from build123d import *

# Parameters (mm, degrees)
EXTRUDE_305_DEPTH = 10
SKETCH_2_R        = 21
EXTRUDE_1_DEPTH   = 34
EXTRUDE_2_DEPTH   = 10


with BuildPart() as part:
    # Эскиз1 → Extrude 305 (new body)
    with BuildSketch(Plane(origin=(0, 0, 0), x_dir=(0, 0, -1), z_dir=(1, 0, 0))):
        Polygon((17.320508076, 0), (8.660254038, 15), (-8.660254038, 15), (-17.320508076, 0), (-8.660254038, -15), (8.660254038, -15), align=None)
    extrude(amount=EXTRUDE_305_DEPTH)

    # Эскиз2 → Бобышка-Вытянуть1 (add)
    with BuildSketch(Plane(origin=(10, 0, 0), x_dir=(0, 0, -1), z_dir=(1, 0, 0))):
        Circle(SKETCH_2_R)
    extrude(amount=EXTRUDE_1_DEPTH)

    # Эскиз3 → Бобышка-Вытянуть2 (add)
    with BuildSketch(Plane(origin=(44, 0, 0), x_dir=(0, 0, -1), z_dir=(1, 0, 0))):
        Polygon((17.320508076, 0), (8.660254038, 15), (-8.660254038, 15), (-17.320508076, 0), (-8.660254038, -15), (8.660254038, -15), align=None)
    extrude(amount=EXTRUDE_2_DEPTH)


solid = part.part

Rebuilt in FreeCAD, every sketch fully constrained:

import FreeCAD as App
import Part
import Sketcher

V = App.Vector
Q = App.Units.Quantity


def add_polygon(sketch, points):
    """Adds a closed chain of lines whose ends are joined by coincident constraints."""
    first, n = sketch.GeometryCount, len(points)
    for a, b in zip(points, points[1:] + points[:1]):
        sketch.addGeometry(Part.LineSegment(App.Vector(*a, 0), App.Vector(*b, 0)), False)
    for i in range(n):
        sketch.addConstraint(Sketcher.Constraint("Coincident", first + i, 2, first + (i + 1) % n, 1))

doc = App.newDocument("Part")
params = doc.addObject("Spreadsheet::Sheet", "Params")
for row, (alias, value) in enumerate([
    ("pad1_length", "10 mm"),
    ("sketch2_diameter", "42 mm"),
    ("pad2_length", "34 mm"),
    ("pad3_length", "10 mm"),
], start=1):
    params.set(f"A{row}", alias)
    params.set(f"B{row}", "=" + value)
    params.setAlias(f"B{row}", alias)

body = doc.addObject("PartDesign::Body", "Body")

# Sketch on YZ plane
sketch1 = body.newObject("Sketcher::SketchObject", "Sketch")
sketch1.AttachmentSupport = (doc.getObject("YZ_Plane"), [""])
sketch1.MapMode = "FlatFace"
add_polygon(sketch1, [(0, -17.320508), (15, -8.660254), (15, 8.660254), (0, 17.320508), (-15, 8.660254), (-15, -8.660254)])  # lines 0-5
sketch1.addConstraint(Sketcher.Constraint("Vertical", 1))
sketch1.addConstraint(Sketcher.Constraint("Vertical", 4))
sketch1.addConstraint(Sketcher.Constraint("Symmetric", 0, 2, 3, 2, -1, 1))
sketch1.addConstraint(Sketcher.Constraint("Symmetric", 2, 2, 5, 2, -1, 1))
sketch1.addConstraint(Sketcher.Constraint("PointOnObject", 2, 2, -2))
sketch1.addConstraint(Sketcher.Constraint("Parallel", 2, 5))
sketch1.addConstraint(Sketcher.Constraint("Horizontal", 1, 2, 3, 2))
sketch1.addConstraint(Sketcher.Constraint("Angle", 0, Q("30 deg")))
sketch1.addConstraint(Sketcher.Constraint("DistanceX", -1, 1, 0, 2, Q("15 mm")))
sketch1.addConstraint(Sketcher.Constraint("DistanceY", 1, 1, 1, 2, Q("17.320508 mm")))
pad1 = body.newObject("PartDesign::Pad", "Pad")
pad1.Profile = sketch1
pad1.setExpression("Length", "Params.pad1_length")

# Sketch on YZ plane
sketch2 = body.newObject("Sketcher::SketchObject", "Sketch001")
sketch2.AttachmentSupport = (doc.getObject("YZ_Plane"), [""])
sketch2.MapMode = "FlatFace"
sketch2.AttachmentOffset = App.Placement(V(0, 0, 10), App.Rotation())
sketch2.addGeometry(Part.Circle(V(0, 0, 0), V(0, 0, 1), 21), False)
sketch2.addConstraint(Sketcher.Constraint("Coincident", 0, 3, -1, 1))
sketch2.addConstraint(Sketcher.Constraint("Diameter", 0, Q("42 mm")))
sketch2.setExpression("Constraints[1]", "Params.sketch2_diameter")
pad2 = body.newObject("PartDesign::Pad", "Pad001")
pad2.Profile = sketch2
pad2.setExpression("Length", "Params.pad2_length")

# Sketch on YZ plane
sketch3 = body.newObject("Sketcher::SketchObject", "Sketch002")
sketch3.AttachmentSupport = (doc.getObject("YZ_Plane"), [""])
sketch3.MapMode = "FlatFace"
sketch3.AttachmentOffset = App.Placement(V(0, 0, 44), App.Rotation())
add_polygon(sketch3, [(0, -17.320508), (15, -8.660254), (15, 8.660254), (0, 17.320508), (-15, 8.660254), (-15, -8.660254)])  # lines 0-5
sketch3.addConstraint(Sketcher.Constraint("Vertical", 1))
sketch3.addConstraint(Sketcher.Constraint("Vertical", 4))
sketch3.addConstraint(Sketcher.Constraint("Symmetric", 0, 2, 3, 2, -1, 1))
sketch3.addConstraint(Sketcher.Constraint("Symmetric", 2, 2, 5, 2, -1, 1))
sketch3.addConstraint(Sketcher.Constraint("PointOnObject", 2, 2, -2))
sketch3.addConstraint(Sketcher.Constraint("Parallel", 2, 5))
sketch3.addConstraint(Sketcher.Constraint("Horizontal", 1, 2, 3, 2))
sketch3.addConstraint(Sketcher.Constraint("Angle", 0, Q("30 deg")))
sketch3.addConstraint(Sketcher.Constraint("DistanceX", -1, 1, 0, 2, Q("15 mm")))
sketch3.addConstraint(Sketcher.Constraint("DistanceY", 1, 1, 1, 2, Q("17.320508 mm")))
pad3 = body.newObject("PartDesign::Pad", "Pad002")
pad3.Profile = sketch3
pad3.setExpression("Length", "Params.pad3_length")

doc.recompute()
